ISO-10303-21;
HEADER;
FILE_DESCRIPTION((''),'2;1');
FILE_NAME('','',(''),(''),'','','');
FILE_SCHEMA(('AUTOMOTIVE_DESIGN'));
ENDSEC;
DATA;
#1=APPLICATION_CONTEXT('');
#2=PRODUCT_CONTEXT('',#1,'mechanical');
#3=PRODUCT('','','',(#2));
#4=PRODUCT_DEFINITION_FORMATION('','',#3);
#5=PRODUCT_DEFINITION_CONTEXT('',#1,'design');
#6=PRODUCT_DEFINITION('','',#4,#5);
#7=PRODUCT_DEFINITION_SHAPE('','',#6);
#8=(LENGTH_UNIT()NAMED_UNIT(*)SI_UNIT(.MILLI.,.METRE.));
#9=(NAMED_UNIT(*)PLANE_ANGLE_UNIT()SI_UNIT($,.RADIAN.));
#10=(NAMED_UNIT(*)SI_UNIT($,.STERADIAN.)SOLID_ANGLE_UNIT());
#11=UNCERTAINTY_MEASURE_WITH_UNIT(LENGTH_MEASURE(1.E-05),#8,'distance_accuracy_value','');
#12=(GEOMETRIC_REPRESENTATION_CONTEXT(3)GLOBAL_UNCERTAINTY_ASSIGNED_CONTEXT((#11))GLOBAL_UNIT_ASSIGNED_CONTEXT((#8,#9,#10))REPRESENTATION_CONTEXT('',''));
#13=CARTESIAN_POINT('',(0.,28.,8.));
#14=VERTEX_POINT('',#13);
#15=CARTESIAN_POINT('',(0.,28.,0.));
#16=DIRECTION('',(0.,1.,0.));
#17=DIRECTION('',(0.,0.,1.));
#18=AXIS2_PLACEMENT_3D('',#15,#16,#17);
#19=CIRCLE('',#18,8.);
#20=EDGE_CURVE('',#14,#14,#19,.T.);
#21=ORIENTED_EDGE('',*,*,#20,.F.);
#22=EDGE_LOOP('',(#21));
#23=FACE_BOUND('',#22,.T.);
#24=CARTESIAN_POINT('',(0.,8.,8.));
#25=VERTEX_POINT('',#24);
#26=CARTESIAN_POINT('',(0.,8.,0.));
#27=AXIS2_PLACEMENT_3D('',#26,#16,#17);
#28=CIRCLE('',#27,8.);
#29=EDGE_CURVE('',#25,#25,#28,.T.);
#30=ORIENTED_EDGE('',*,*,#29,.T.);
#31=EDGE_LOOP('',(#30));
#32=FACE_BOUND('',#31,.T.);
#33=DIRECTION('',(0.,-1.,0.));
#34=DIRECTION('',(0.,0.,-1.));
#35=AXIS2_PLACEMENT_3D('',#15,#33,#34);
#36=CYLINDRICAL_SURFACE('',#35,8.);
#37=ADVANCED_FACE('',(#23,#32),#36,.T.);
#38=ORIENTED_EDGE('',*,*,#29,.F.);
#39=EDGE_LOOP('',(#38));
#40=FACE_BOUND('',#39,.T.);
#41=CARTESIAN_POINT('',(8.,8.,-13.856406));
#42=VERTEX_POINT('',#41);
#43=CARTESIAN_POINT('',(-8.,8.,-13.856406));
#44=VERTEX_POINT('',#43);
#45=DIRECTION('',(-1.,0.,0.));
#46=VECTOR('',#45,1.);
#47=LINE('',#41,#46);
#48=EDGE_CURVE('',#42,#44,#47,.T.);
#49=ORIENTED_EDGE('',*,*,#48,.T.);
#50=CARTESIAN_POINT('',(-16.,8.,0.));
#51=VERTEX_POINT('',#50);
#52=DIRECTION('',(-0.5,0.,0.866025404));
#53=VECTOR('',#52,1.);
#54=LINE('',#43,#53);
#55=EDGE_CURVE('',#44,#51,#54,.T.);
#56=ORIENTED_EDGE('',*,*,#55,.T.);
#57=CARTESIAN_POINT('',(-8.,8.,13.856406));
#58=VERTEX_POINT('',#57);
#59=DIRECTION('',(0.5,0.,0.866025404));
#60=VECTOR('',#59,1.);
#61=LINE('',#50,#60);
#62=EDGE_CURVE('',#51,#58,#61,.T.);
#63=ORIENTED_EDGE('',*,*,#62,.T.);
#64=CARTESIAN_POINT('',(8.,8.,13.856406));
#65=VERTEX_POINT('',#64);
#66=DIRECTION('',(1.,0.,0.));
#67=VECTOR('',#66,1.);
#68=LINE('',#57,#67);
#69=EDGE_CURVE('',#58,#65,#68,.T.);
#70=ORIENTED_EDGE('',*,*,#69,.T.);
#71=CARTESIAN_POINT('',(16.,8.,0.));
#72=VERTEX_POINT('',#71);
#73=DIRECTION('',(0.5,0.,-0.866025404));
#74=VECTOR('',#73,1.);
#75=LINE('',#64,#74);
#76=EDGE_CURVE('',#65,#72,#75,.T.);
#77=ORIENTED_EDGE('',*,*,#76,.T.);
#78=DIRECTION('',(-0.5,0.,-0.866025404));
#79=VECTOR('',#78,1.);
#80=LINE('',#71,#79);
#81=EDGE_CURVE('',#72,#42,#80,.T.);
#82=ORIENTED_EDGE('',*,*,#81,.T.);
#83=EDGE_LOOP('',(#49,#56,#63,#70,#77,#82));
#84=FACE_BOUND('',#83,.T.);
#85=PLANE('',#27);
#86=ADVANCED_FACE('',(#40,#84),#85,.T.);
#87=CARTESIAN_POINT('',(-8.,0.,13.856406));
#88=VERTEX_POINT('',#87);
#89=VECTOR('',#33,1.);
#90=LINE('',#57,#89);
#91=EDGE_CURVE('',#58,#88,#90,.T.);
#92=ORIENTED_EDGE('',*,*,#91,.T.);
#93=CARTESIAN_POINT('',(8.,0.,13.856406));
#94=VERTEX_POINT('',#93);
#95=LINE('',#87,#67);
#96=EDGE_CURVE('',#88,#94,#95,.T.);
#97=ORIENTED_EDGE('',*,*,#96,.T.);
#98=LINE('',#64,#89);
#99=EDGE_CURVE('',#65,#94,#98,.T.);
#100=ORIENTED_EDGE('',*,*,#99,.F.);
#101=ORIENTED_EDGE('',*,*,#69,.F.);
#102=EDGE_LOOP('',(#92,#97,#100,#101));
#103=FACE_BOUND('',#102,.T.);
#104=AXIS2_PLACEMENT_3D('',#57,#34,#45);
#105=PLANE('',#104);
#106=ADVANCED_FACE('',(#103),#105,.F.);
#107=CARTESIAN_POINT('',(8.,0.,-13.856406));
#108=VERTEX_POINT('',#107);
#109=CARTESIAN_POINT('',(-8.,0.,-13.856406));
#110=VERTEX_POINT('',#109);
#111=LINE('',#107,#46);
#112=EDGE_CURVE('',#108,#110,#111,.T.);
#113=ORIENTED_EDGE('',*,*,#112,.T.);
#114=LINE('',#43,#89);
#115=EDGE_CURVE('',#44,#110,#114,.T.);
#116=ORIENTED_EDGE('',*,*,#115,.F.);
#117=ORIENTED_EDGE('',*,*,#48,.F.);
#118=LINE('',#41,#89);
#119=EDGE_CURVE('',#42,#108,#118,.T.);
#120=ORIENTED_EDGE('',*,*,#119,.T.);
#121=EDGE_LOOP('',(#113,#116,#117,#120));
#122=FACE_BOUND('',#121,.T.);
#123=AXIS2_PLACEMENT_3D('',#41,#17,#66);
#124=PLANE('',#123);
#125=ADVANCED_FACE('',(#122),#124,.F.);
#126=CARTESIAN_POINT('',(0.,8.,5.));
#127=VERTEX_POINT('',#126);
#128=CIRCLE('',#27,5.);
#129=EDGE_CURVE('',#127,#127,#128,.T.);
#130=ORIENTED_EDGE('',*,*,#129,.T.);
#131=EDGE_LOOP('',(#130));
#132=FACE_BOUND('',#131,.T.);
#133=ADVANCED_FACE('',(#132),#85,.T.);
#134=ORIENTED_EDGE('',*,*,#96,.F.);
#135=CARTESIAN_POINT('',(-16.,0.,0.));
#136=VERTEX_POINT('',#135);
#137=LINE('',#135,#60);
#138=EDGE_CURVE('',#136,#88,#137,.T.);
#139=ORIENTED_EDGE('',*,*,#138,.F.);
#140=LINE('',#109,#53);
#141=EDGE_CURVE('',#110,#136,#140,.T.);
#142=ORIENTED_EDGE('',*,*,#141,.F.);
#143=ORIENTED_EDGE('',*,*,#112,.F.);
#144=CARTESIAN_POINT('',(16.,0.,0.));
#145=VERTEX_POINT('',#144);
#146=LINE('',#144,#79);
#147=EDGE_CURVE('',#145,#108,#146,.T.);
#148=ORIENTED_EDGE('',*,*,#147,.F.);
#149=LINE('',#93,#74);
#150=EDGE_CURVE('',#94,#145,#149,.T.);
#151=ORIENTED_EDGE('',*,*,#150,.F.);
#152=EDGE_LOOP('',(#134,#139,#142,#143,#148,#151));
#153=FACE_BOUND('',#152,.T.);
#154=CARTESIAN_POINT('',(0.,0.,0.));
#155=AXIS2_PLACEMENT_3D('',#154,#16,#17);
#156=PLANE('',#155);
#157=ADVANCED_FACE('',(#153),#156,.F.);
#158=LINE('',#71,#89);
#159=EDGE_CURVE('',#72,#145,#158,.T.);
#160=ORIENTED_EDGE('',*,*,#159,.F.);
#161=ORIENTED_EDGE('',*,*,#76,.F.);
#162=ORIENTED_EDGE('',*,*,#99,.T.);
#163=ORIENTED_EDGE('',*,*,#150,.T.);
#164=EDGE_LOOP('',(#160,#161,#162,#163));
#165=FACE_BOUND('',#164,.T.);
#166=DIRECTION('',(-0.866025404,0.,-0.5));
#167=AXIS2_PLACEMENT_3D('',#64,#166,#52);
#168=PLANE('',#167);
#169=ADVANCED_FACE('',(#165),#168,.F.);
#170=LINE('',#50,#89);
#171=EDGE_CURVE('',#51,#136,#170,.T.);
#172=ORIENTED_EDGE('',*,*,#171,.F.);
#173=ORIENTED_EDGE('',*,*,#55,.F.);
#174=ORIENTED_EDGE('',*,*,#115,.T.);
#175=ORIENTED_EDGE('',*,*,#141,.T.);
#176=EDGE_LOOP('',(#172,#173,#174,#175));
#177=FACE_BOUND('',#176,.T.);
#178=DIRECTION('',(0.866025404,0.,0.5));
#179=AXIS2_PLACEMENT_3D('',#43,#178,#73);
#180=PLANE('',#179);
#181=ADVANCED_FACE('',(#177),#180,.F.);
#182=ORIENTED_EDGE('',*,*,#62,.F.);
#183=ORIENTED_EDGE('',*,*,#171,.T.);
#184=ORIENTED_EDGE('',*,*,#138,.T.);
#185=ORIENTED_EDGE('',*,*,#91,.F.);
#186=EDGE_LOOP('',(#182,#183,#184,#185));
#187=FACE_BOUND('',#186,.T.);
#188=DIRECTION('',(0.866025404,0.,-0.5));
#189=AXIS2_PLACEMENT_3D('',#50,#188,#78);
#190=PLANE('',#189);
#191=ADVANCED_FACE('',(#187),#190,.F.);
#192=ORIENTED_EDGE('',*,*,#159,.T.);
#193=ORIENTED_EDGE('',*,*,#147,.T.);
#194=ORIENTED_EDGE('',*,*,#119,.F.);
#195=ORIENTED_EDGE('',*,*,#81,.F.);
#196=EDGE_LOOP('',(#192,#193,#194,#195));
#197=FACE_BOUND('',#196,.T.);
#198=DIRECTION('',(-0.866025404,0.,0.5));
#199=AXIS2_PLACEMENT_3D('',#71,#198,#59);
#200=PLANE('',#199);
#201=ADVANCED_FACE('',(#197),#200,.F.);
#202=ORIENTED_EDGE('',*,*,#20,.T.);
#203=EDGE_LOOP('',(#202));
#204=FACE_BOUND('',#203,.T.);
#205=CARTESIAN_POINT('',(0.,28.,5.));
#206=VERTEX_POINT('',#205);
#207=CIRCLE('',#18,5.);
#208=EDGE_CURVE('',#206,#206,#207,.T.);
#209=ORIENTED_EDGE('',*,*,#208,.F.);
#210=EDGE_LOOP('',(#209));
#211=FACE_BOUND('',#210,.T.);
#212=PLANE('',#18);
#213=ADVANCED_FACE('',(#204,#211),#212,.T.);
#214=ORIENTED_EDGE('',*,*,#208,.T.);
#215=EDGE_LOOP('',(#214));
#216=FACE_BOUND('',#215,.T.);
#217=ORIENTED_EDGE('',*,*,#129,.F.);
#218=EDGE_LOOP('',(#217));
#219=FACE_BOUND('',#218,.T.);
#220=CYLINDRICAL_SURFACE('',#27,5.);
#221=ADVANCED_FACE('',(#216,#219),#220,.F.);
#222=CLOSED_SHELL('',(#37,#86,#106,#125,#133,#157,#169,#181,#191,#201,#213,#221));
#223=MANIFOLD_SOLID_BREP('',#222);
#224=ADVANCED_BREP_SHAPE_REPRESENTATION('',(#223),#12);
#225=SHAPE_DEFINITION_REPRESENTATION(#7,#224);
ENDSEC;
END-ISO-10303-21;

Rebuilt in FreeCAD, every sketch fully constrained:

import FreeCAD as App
import Part
import Sketcher
Q = App.Units.Quantity


def add_polygon(sketch, points):
    """Adds a closed chain of lines whose ends are joined by coincident constraints."""
    first, n = sketch.GeometryCount, len(points)
    for a, b in zip(points, points[1:] + points[:1]):
        sketch.addGeometry(Part.LineSegment(App.Vector(*a, 0), App.Vector(*b, 0)), False)
    for i in range(n):
        sketch.addConstraint(Sketcher.Constraint("Coincident", first + i, 2, first + (i + 1) % n, 1))

doc = App.newDocument("Part")
params = doc.addObject("Spreadsheet::Sheet", "Params")
for row, (alias, value) in enumerate([
    ("sketch1_width", "16 mm"),
    ("sketch1_length", "16 mm"),
    ("pad1_length", "8 mm"),
    ("sketch2_diameter", "16 mm"),
    ("pad2_length", "20 mm"),
    ("sketch3_diameter", "10 mm"),
    ("pocket1_length", "20 mm"),
], start=1):
    params.set(f"A{row}", alias)
    params.set(f"B{row}", "=" + value)
    params.setAlias(f"B{row}", alias)

body = doc.addObject("PartDesign::Body", "Body")

sketch1 = body.newObject("Sketcher::SketchObject", "Sketch")
sketch1.AttachmentSupport = (doc.getObject("XZ_Plane"), [""])
sketch1.MapMode = "FlatFace"
add_polygon(sketch1, [(8, 13.856406), (16, 0), (8, -13.856406), (-8, -13.856406), (-16, 0), (-8, 13.856406)])
sketch1.addConstraint([
    Sketcher.Constraint("Horizontal", 2),
    Sketcher.Constraint("Horizontal", 5),
    Sketcher.Constraint("Symmetric", 0, 2, 3, 2, -1, 1),
    Sketcher.Constraint("Symmetric", 1, 2, 4, 2, -1, 1),
    Sketcher.Constraint("PointOnObject", 0, 2, -1),
    Sketcher.Constraint("Parallel", 0, 3),
    Sketcher.Constraint("Vertical", 2, 2, 4, 2),
    Sketcher.Constraint("DistanceX", 2, 2, 2, 1, Q("16 mm")),
    Sketcher.Constraint("Angle", 0, Q("-60 deg")),
    Sketcher.Constraint("Distance", 0, Q("16 mm")),
])
sketch1.setExpression("Constraints[13]", "Params.sketch1_width")
sketch1.setExpression("Constraints[15]", "Params.sketch1_length")
pad1 = body.newObject("PartDesign::Pad", "Pad")
pad1.Profile = sketch1
pad1.setExpression("Length", "Params.pad1_length")
pad1.Reversed = True

sketch2 = body.newObject("Sketcher::SketchObject", "Sketch001")
sketch2.AttachmentSupport = (doc.getObject("XZ_Plane"), [""])
sketch2.MapMode = "FlatFace"
sketch2.AttachmentOffset = App.Placement(App.Vector(0, 0, -8), App.Rotation())
sketch2.addGeometry(Part.Circle(App.Vector(0, 0, 0), App.Vector(0, 0, 1), 8), False)
sketch2.addConstraint([
    Sketcher.Constraint("Coincident", 0, 3, -1, 1),
    Sketcher.Constraint("Diameter", 0, Q("16 mm")),
])
sketch2.setExpression("Constraints[1]", "Params.sketch2_diameter")
pad2 = body.newObject("PartDesign::Pad", "Pad001")
pad2.Profile = sketch2
pad2.setExpression("Length", "Params.pad2_length")
pad2.Reversed = True

sketch3 = body.newObject("Sketcher::SketchObject", "Sketch002")
sketch3.AttachmentSupport = (doc.getObject("XZ_Plane"), [""])
sketch3.MapMode = "FlatFace"
sketch3.AttachmentOffset = App.Placement(App.Vector(0, 0, -28), App.Rotation())
sketch3.addGeometry(Part.Circle(App.Vector(0, 0, 0), App.Vector(0, 0, 1), 5), False)
sketch3.addConstraint([
    Sketcher.Constraint("Coincident", 0, 3, -1, 1),
    Sketcher.Constraint("Diameter", 0, Q("10 mm")),
])
sketch3.setExpression("Constraints[1]", "Params.sketch3_diameter")
pocket1 = body.newObject("PartDesign::Pocket", "Pocket")
pocket1.Profile = sketch3
pocket1.setExpression("Length", "Params.pocket1_length")
pocket1.Reversed = True

doc.recompute()
